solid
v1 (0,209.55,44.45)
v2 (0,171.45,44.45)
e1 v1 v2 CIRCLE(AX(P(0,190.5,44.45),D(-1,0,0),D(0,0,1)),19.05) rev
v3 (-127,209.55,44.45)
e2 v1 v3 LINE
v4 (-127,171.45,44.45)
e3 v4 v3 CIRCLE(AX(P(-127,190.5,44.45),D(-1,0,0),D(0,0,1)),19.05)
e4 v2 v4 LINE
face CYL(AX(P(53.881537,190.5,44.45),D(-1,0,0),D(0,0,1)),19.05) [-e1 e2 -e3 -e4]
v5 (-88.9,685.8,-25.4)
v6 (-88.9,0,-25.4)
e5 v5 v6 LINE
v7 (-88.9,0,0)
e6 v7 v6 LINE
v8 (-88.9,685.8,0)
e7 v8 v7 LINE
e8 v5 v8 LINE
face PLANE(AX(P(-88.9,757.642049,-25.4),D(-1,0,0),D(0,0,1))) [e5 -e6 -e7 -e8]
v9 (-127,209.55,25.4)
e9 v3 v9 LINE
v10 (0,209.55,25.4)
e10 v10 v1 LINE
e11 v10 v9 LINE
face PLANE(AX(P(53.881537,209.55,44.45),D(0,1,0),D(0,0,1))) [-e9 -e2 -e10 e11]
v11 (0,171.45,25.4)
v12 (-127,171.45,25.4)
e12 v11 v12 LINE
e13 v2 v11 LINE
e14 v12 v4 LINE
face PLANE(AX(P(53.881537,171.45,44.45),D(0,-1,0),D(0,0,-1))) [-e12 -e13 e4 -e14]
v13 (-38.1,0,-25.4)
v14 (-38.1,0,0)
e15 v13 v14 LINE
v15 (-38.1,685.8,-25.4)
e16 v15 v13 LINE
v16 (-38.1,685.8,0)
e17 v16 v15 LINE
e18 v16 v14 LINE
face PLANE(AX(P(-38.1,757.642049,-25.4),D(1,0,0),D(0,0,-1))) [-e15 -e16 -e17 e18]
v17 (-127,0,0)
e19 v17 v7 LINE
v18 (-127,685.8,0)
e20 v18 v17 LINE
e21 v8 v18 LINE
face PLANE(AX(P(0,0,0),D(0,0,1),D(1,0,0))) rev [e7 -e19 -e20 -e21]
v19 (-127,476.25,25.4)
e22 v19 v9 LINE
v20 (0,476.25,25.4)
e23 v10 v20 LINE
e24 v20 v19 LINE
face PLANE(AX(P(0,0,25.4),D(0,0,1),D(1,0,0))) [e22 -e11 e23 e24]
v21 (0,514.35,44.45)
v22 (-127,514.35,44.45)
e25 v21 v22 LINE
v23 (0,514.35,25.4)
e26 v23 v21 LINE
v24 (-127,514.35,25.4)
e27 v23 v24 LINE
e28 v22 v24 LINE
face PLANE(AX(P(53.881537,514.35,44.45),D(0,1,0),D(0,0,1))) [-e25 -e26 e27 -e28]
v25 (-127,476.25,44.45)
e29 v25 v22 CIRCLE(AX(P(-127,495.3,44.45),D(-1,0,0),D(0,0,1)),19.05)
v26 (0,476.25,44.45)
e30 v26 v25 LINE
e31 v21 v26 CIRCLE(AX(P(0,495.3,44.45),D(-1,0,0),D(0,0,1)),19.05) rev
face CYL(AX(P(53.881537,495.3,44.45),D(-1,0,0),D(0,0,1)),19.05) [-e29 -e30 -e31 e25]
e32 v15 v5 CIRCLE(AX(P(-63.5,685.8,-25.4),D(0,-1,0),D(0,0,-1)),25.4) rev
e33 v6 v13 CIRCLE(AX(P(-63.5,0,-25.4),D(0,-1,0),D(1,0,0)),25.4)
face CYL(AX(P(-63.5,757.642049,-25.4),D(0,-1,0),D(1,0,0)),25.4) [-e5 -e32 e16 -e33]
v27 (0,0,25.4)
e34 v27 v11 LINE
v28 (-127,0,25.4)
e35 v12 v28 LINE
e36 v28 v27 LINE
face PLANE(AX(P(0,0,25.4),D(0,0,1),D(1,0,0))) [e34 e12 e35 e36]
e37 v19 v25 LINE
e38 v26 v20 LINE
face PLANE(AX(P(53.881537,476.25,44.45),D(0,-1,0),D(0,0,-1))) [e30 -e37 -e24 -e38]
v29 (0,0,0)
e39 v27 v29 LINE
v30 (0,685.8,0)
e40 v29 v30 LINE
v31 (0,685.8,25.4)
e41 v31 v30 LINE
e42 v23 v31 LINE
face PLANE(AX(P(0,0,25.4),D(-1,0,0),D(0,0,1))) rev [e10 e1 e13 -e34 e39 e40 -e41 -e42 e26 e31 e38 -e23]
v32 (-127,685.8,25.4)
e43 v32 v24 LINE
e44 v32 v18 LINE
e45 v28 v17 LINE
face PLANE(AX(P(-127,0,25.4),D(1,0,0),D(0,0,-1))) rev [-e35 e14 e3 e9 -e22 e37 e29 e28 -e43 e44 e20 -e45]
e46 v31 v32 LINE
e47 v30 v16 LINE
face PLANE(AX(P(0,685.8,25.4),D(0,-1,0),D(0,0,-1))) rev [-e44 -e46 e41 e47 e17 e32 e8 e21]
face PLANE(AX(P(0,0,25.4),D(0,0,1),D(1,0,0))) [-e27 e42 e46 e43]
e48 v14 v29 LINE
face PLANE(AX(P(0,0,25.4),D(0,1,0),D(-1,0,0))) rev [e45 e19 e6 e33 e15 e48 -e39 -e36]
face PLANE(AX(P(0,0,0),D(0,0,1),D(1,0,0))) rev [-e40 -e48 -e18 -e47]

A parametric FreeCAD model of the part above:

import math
import FreeCAD as App
import Part
import Sketcher
from FreeCAD import Vector
Q = App.Units.Quantity


def add_polygon(sketch, points):
    """Adds a closed chain of lines whose ends are joined by coincident constraints."""
    first, n = sketch.GeometryCount, len(points)
    for a, b in zip(points, points[1:] + points[:1]):
        sketch.addGeometry(Part.LineSegment(App.Vector(*a, 0), App.Vector(*b, 0)), False)
    for i in range(n):
        sketch.addConstraint(Sketcher.Constraint("Coincident", first + i, 2, first + (i + 1) % n, 1))

doc = App.newDocument("Part")
body = doc.addObject("PartDesign::Body", "Body")

# Sketch on XY plane
sketch1 = doc.addObject("Sketcher::SketchObject", "Sketch")
body.addObject(sketch1)
sketch1.AttachmentSupport = (doc.XY_Plane, [""])
sketch1.MapMode = "FlatFace"
add_polygon(sketch1, [(-127, 686), (-127, 0), (0, 0), (0, 686)])  # lines 0-3
sketch1.addConstraint(Sketcher.Constraint("Vertical", 0))
sketch1.addConstraint(Sketcher.Constraint("Horizontal", 1))
sketch1.addConstraint(Sketcher.Constraint("Vertical", 2))
sketch1.addConstraint(Sketcher.Constraint("Horizontal", 3))
sketch1.addConstraint(Sketcher.Constraint("Coincident", 1, 2, -1, 1))
sketch1.addConstraint(Sketcher.Constraint("DistanceX", 1, 1, 1, 2, Q("5 in")))
sketch1.addConstraint(Sketcher.Constraint("DistanceY", 0, 2, 0, 1, Q("27 in")))
pad1 = doc.addObject("PartDesign::Pad", "Pad")
body.addObject(pad1)
pad1.Profile = sketch1
pad1.Length = Q("1 in")

# Sketch on YZ plane
sketch2 = doc.addObject("Sketcher::SketchObject", "Sketch001")
body.addObject(sketch2)
sketch2.AttachmentSupport = (doc.YZ_Plane, [""])
sketch2.MapMode = "FlatFace"
sketch2.AttachmentOffset = App.Placement(Vector(0, 0, -5 * 25.4), App.Rotation())
sketch2.addGeometry(Part.LineSegment(Vector(514, 44, 0), Vector(514, 25, 0)), False)
sketch2.addGeometry(Part.LineSegment(Vector(514, 25, 0), Vector(476, 25, 0)), False)
sketch2.addGeometry(Part.LineSegment(Vector(476, 25, 0), Vector(476, 44, 0)), False)
sketch2.addGeometry(Part.ArcOfCircle(Part.Circle(Vector(495, 44, 0), Vector(0, 0, 1), 19), math.radians(0), math.radians(180)), False)
sketch2.addGeometry(Part.LineSegment(Vector(210, 44, 0), Vector(210, 25, 0)), False)
sketch2.addGeometry(Part.LineSegment(Vector(210, 25, 0), Vector(171, 25, 0)), False)
sketch2.addGeometry(Part.LineSegment(Vector(171, 25, 0), Vector(171, 44, 0)), False)
sketch2.addGeometry(Part.ArcOfCircle(Part.Circle(Vector(190, 44, 0), Vector(0, 0, 1), 19), math.radians(0), math.radians(180)), False)
sketch2.addConstraint(Sketcher.Constraint("Coincident", 0, 2, 1, 1))
sketch2.addConstraint(Sketcher.Constraint("Coincident", 1, 2, 2, 1))
sketch2.addConstraint(Sketcher.Constraint("Tangent", 2, 2, 3, 2))
sketch2.addConstraint(Sketcher.Constraint("Tangent", 3, 1, 0, 1))
sketch2.addConstraint(Sketcher.Constraint("Coincident", 4, 2, 5, 1))
sketch2.addConstraint(Sketcher.Constraint("Coincident", 5, 2, 6, 1))
sketch2.addConstraint(Sketcher.Constraint("Tangent", 6, 2, 7, 2))
sketch2.addConstraint(Sketcher.Constraint("Tangent", 7, 1, 4, 1))
sketch2.addConstraint(Sketcher.Constraint("Vertical", 0))
sketch2.addConstraint(Sketcher.Constraint("Horizontal", 1))
sketch2.addConstraint(Sketcher.Constraint("Vertical", 2))
sketch2.addConstraint(Sketcher.Constraint("Vertical", 4))
sketch2.addConstraint(Sketcher.Constraint("Horizontal", 5))
sketch2.addConstraint(Sketcher.Constraint("Vertical", 6))
sketch2.addConstraint(Sketcher.Constraint("Equal", 3, 7))
sketch2.addConstraint(Sketcher.Constraint("Horizontal", 3, 3, 7, 3))
sketch2.addConstraint(Sketcher.Constraint("Horizontal", 1, 2, 4, 2))
sketch2.addConstraint(Sketcher.Constraint("Radius", 3, Q("0.75 in")))
sketch2.addConstraint(Sketcher.Constraint("DistanceY", -1, 1, 0, 2, Q("1 in")))
sketch2.addConstraint(Sketcher.Constraint("DistanceX", 7, 3, 3, 3, Q("12 in")))
sketch2.addConstraint(Sketcher.Constraint("DistanceY", 0, 2, 0, 1, Q("0.75 in")))
sketch2.addConstraint(Sketcher.Constraint("DistanceX", -1, 1, 3, 3, Q("19.5 in")))
pad2 = doc.addObject("PartDesign::Pad", "Pad001")
body.addObject(pad2)
pad2.Profile = sketch2
pad2.Length = Q("5 in")

# Sketch on XZ plane
sketch3 = doc.addObject("Sketcher::SketchObject", "Sketch002")
body.addObject(sketch3)
sketch3.AttachmentSupport = (doc.XZ_Plane, [""])
sketch3.MapMode = "FlatFace"
sketch3.addGeometry(Part.LineSegment(Vector(-89, 0, 0), Vector(-89, -25, 0)), False)
sketch3.addGeometry(Part.ArcOfCircle(Part.Circle(Vector(-64, -25, 0), Vector(0, 0, 1), 25), math.radians(180), math.radians(360)), False)
sketch3.addGeometry(Part.LineSegment(Vector(-38, -25, 0), Vector(-38, 0, 0)), False)
sketch3.addGeometry(Part.LineSegment(Vector(-38, 0, 0), Vector(-89, 0, 0)), False)
sketch3.addConstraint(Sketcher.Constraint("Tangent", 0, 2, 1, 1))
sketch3.addConstraint(Sketcher.Constraint("Tangent", 1, 2, 2, 1))
sketch3.addConstraint(Sketcher.Constraint("Coincident", 2, 2, 3, 1))
sketch3.addConstraint(Sketcher.Constraint("Coincident", 3, 2, 0, 1))
sketch3.addConstraint(Sketcher.Constraint("Vertical", 0))
sketch3.addConstraint(Sketcher.Constraint("Vertical", 2))
sketch3.addConstraint(Sketcher.Constraint("Horizontal", 3))
sketch3.addConstraint(Sketcher.Constraint("PointOnObject", 2, 2, -1))
sketch3.addConstraint(Sketcher.Constraint("Radius", 1, Q("1 in")))
sketch3.addConstraint(Sketcher.Constraint("DistanceY", 0, 2, 0, 1, Q("1 in")))
sketch3.addConstraint(Sketcher.Constraint("DistanceX", 1, 3, -1, 1, Q("2.5 in")))
pad3 = doc.addObject("PartDesign::Pad", "Pad002")
body.addObject(pad3)
pad3.Profile = sketch3
pad3.Length = Q("27 in")
pad3.Reversed = True

doc.recompute()
